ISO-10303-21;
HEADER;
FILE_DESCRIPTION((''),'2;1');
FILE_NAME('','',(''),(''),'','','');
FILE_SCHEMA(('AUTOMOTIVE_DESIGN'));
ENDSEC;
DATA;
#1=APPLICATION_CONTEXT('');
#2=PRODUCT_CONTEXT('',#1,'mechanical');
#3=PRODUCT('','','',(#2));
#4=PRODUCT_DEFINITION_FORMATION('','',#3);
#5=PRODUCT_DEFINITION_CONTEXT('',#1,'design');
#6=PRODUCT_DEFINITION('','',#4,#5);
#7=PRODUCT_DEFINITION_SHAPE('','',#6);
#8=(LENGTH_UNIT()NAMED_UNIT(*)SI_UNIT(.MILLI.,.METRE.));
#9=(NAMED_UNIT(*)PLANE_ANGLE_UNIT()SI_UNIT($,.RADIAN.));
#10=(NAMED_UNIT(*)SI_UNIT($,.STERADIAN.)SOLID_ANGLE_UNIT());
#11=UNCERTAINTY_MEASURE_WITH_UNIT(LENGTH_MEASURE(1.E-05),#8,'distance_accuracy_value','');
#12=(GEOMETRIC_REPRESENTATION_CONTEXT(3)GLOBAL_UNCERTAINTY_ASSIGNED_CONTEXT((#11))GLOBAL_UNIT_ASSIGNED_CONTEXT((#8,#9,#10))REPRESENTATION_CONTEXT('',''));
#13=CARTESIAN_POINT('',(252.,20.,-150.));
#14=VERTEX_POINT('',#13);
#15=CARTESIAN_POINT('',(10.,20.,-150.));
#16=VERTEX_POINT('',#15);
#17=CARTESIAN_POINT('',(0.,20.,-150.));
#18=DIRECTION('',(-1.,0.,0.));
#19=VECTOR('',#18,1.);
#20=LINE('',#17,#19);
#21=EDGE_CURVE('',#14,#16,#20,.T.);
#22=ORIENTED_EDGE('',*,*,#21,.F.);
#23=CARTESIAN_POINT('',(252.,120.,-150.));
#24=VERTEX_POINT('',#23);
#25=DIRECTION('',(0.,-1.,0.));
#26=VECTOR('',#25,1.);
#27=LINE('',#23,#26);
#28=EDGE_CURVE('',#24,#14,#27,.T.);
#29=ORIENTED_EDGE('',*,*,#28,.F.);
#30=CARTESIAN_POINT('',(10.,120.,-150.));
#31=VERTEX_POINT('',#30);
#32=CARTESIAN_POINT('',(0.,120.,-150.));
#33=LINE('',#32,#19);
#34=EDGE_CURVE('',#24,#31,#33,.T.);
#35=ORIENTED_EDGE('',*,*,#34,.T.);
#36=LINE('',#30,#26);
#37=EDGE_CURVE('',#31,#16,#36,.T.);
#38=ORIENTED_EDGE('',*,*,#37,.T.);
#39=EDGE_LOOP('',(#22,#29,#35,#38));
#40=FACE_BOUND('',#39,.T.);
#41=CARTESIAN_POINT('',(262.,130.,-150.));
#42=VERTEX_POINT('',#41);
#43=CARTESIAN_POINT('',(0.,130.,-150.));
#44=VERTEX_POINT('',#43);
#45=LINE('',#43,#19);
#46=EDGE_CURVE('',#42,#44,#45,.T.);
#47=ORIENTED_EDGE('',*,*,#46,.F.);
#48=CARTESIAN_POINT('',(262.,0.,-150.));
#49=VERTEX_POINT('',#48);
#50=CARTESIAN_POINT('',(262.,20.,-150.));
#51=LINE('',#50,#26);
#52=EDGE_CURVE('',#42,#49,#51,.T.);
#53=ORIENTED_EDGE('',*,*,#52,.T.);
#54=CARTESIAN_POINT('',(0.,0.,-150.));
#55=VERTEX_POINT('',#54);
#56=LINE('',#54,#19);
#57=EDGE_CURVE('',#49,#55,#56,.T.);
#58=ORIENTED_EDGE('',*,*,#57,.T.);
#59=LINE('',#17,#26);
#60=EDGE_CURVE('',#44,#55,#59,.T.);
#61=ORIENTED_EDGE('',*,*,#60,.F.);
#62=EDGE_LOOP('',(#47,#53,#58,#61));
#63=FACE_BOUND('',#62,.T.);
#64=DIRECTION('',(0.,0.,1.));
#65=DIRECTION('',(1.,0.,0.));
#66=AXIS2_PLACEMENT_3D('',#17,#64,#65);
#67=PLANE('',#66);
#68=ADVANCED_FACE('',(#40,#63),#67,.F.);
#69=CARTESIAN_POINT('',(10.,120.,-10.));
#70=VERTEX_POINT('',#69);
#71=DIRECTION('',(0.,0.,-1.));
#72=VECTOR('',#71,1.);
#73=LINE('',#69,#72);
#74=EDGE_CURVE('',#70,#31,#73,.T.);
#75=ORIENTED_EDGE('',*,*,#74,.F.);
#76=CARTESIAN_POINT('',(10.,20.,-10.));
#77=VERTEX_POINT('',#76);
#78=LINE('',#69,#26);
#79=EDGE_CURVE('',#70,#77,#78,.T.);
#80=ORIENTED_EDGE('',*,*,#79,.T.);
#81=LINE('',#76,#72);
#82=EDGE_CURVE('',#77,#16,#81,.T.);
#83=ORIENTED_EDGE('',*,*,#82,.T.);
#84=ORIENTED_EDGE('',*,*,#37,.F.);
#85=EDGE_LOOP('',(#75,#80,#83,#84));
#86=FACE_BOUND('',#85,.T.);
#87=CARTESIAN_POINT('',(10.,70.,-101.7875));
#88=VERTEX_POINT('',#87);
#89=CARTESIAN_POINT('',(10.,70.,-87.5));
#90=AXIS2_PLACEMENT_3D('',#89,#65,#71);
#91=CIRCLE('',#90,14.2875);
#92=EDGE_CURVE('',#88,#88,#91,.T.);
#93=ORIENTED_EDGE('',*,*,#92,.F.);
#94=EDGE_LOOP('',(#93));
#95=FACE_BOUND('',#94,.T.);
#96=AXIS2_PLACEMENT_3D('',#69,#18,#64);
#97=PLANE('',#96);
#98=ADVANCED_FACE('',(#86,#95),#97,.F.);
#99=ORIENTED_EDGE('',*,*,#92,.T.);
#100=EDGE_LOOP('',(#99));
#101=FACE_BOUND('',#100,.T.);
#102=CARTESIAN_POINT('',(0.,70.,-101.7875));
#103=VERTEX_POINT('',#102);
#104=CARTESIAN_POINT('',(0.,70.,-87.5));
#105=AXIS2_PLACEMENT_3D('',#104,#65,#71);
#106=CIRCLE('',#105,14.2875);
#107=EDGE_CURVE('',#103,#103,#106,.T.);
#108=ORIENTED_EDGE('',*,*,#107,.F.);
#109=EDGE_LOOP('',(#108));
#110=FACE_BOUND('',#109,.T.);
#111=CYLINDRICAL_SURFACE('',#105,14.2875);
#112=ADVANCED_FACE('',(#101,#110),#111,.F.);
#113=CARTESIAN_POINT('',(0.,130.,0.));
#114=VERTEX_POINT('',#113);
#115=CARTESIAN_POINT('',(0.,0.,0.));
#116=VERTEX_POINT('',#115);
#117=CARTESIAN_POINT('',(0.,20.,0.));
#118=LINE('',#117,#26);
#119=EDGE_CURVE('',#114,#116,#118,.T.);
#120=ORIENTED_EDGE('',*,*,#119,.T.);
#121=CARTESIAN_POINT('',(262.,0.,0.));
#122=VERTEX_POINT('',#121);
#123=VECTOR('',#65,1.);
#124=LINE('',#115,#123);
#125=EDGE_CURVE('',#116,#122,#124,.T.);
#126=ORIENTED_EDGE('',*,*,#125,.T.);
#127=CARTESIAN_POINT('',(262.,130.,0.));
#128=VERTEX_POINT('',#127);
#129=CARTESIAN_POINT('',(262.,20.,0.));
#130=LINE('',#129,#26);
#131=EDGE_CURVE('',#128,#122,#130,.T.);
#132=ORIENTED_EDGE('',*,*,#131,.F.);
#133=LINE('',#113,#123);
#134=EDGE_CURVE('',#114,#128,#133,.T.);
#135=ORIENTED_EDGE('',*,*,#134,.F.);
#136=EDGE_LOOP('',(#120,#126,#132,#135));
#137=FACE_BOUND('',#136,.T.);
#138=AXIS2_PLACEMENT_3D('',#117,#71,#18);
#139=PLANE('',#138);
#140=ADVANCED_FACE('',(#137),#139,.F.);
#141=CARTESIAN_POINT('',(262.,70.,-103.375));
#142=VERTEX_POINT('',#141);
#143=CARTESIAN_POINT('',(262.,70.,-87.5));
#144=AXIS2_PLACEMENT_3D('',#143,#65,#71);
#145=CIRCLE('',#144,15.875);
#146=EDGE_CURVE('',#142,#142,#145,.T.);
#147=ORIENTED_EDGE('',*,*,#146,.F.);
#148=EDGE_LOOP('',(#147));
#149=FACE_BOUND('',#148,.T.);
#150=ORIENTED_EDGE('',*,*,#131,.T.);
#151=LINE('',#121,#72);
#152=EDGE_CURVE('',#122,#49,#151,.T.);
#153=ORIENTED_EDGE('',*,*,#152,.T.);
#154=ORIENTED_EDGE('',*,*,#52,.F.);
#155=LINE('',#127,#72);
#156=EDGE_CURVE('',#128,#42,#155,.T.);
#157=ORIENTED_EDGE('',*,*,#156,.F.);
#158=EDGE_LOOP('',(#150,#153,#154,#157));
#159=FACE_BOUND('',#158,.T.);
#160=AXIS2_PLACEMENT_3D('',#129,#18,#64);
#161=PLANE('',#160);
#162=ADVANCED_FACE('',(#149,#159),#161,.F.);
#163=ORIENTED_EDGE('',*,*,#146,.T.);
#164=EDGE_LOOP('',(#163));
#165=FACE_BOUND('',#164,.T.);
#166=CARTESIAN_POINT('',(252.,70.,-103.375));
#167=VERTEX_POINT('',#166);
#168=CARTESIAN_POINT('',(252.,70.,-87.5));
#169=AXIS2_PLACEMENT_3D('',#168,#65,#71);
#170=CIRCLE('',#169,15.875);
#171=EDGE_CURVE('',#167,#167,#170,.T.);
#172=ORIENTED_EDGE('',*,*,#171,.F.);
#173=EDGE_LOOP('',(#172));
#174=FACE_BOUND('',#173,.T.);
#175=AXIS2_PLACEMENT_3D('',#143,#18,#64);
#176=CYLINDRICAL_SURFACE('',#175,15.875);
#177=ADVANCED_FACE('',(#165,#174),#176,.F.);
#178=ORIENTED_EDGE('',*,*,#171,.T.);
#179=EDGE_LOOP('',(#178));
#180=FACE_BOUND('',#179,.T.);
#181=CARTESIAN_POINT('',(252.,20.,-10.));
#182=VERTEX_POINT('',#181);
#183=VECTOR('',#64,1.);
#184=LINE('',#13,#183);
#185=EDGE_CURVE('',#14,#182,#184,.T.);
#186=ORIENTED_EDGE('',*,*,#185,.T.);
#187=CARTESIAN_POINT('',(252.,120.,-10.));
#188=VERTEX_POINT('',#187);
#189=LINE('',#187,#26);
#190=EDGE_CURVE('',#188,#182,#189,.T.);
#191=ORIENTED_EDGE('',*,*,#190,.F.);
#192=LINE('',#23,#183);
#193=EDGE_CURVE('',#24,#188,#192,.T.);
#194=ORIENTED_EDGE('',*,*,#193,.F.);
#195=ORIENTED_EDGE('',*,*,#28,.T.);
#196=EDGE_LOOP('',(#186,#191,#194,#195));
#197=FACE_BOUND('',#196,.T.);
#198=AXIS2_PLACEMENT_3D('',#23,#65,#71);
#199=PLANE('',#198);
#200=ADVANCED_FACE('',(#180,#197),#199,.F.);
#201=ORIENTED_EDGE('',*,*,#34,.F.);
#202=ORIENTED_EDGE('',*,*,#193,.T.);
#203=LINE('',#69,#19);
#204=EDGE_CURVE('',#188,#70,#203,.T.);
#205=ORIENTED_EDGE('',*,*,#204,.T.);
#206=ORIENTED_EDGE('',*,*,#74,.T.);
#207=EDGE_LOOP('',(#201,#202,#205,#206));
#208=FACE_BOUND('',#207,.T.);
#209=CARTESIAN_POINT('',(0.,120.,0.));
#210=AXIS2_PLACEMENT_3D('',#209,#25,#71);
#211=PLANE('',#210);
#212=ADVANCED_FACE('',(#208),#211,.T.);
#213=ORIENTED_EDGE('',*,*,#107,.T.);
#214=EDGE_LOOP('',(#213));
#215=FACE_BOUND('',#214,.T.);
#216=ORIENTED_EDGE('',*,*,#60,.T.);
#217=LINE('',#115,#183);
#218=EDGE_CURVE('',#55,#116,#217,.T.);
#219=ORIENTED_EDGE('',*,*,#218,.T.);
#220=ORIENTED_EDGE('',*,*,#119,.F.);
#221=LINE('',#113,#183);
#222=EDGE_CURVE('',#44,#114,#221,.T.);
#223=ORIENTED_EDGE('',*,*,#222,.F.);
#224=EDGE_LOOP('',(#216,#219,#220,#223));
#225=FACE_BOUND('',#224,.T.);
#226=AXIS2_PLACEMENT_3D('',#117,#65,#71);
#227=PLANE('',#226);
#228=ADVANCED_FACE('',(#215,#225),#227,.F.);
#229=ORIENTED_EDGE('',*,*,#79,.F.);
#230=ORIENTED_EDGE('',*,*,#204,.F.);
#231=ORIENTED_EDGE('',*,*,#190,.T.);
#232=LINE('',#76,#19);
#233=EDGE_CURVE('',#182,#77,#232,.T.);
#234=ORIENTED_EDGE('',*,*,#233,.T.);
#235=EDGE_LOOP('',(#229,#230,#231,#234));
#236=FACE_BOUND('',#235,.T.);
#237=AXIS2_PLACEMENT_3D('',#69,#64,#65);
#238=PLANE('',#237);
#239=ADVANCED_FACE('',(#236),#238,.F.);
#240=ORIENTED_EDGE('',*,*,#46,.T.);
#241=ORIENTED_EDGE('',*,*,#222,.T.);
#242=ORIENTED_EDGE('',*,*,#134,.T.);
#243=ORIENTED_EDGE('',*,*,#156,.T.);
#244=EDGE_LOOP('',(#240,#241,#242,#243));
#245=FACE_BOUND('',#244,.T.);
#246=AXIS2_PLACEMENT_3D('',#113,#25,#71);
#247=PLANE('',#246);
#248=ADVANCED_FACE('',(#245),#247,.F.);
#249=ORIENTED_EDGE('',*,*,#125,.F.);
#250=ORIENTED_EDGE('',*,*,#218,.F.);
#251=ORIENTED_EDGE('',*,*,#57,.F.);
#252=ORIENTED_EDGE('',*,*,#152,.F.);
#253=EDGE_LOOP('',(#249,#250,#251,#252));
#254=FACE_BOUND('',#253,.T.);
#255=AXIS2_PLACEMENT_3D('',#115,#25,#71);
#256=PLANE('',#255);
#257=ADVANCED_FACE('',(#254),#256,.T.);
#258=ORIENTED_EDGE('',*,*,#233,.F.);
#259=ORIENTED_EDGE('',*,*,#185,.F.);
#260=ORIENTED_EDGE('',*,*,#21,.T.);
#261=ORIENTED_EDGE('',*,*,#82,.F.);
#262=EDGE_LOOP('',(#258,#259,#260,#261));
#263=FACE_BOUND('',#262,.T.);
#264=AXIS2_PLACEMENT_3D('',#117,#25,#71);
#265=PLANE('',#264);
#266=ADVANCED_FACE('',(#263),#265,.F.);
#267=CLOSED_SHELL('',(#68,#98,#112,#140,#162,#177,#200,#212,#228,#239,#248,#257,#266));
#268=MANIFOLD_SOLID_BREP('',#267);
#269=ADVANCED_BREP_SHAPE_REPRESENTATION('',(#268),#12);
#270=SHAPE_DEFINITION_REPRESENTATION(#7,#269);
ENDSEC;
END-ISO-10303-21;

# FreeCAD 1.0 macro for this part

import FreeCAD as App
import Part
import Sketcher

V = App.Vector

doc = App.newDocument("Part")
body = doc.addObject("PartDesign::Body", "Body")

sketch1 = body.newObject("Sketcher::SketchObject", "Sketch")
sketch1.AttachmentSupport = (doc.getObject("XZ_Plane"), [""])
sketch1.MapMode = "FlatFace"
sketch1.addGeometry([
    Part.LineSegment(V(0, -150, 0), V(0, 0, 0)),
    Part.LineSegment(V(0, 0, 0), V(262, 0, 0)),
    Part.LineSegment(V(262, 0, 0), V(262, -150, 0)),
    Part.LineSegment(V(262, -150, 0), V(0, -150, 0)),
], False)
sketch1.addConstraint([
    Sketcher.Constraint("Coincident", 0, 2, 1, 1),
    Sketcher.Constraint("Coincident", 1, 2, 2, 1),
    Sketcher.Constraint("Coincident", 2, 2, 3, 1),
    Sketcher.Constraint("Coincident", 3, 2, 0, 1),
    Sketcher.Constraint("Vertical", 0),
    Sketcher.Constraint("Horizontal", 1),
    Sketcher.Constraint("Vertical", 2),
    Sketcher.Constraint("Horizontal", 3),
    Sketcher.Constraint("Coincident", 0, 2, -1, 1),
    Sketcher.Constraint("DistanceX", 1, 1, 1, 2, 262.0),
    Sketcher.Constraint("DistanceY", 0, 1, 0, 2, 150.0),
])
pad1 = body.newObject("PartDesign::Pad", "Pad")
pad1.Profile = sketch1
pad1.Length = 20
pad1.Reversed = True

sketch2 = body.newObject("Sketcher::SketchObject", "Sketch001")
sketch2.AttachmentSupport = (doc.getObject("XZ_Plane"), [""])
sketch2.MapMode = "FlatFace"
sketch2.AttachmentOffset = App.Placement(V(0, 0, -20), App.Rotation())
sketch2.addGeometry([
    Part.LineSegment(V(0, 0, 0), V(262, 0, 0)),
    Part.LineSegment(V(262, 0, 0), V(262, -150, 0)),
    Part.LineSegment(V(262, -150, 0), V(252, -150, 0)),
    Part.LineSegment(V(252, -150, 0), V(252, -10, 0)),
    Part.LineSegment(V(252, -10, 0), V(10, -10, 0)),
    Part.LineSegment(V(10, -10, 0), V(10, -150, 0)),
    Part.LineSegment(V(10, -150, 0), V(0, -150, 0)),
    Part.LineSegment(V(0, -150, 0), V(0, 0, 0)),
], False)
sketch2.addConstraint([
    Sketcher.Constraint("Coincident", 0, 2, 1, 1),
    Sketcher.Constraint("Coincident", 1, 2, 2, 1),
    Sketcher.Constraint("Coincident", 2, 2, 3, 1),
    Sketcher.Constraint("Coincident", 3, 2, 4, 1),
    Sketcher.Constraint("Coincident", 4, 2, 5, 1),
    Sketcher.Constraint("Coincident", 5, 2, 6, 1),
    Sketcher.Constraint("Coincident", 6, 2, 7, 1),
    Sketcher.Constraint("Coincident", 7, 2, 0, 1),
    Sketcher.Constraint("Horizontal", 0),
    Sketcher.Constraint("Vertical", 1),
    Sketcher.Constraint("Horizontal", 2),
    Sketcher.Constraint("Vertical", 3),
    Sketcher.Constraint("Horizontal", 4),
    Sketcher.Constraint("Vertical", 5),
    Sketcher.Constraint("Horizontal", 6),
    Sketcher.Constraint("Vertical", 7),
    Sketcher.Constraint("Coincident", 7, 2, -1, 1),
    Sketcher.Constraint("Horizontal", 2, 2, 5, 2),
    Sketcher.Constraint("Equal", 2, 6),
    Sketcher.Constraint("DistanceX", 0, 1, 0, 2, 262.0),
    Sketcher.Constraint("DistanceX", 2, 2, 2, 1, 10.0),
    Sketcher.Constraint("DistanceY", 1, 2, 1, 1, 150.0),
    Sketcher.Constraint("DistanceY", 3, 1, 3, 2, 140.0),
])
pad2 = body.newObject("PartDesign::Pad", "Pad001")
pad2.Profile = sketch2
pad2.Length = 100
pad2.Reversed = True

sketch3 = body.newObject("Sketcher::SketchObject", "Sketch002")
sketch3.AttachmentSupport = (doc.getObject("YZ_Plane"), [""])
sketch3.MapMode = "FlatFace"
sketch3.AttachmentOffset = App.Placement(V(0, 0, 10), App.Rotation())
sketch3.addGeometry(Part.Circle(V(70, -88, 0), V(0, 0, 1), 14), False)
sketch3.addConstraint([
    Sketcher.Constraint("Diameter", 0, 28.575),
    Sketcher.Constraint("DistanceX", -1, 1, 0, 3, 70.0),
    Sketcher.Constraint("DistanceY", 0, 3, -1, 1, 87.5),
])
pocket1 = body.newObject("PartDesign::Pocket", "Pocket")
pocket1.Profile = sketch3
pocket1.Type = "ThroughAll"

sketch4 = body.newObject("Sketcher::SketchObject", "Sketch003")
sketch4.AttachmentSupport = (doc.getObject("YZ_Plane"), [""])
sketch4.MapMode = "FlatFace"
sketch4.AttachmentOffset = App.Placement(V(0, 0, 252), App.Rotation())
sketch4.addGeometry(Part.Circle(V(70, -88, 0), V(0, 0, 1), 16), False)
sketch4.addConstraint([
    Sketcher.Constraint("Diameter", 0, 31.75),
    Sketcher.Constraint("DistanceX", -1, 1, 0, 3, 70.0),
    Sketcher.Constraint("DistanceY", 0, 3, -1, 1, 87.5),
])
pocket2 = body.newObject("PartDesign::Pocket", "Pocket001")
pocket2.Profile = sketch4
pocket2.Type = "ThroughAll"
pocket2.Reversed = True

sketch5 = body.newObject("Sketcher::SketchObject", "Sketch004")
sketch5.AttachmentSupport = (doc.getObject("XZ_Plane"), [""])
sketch5.MapMode = "FlatFace"
sketch5.AttachmentOffset = App.Placement(V(0, 0, -120), App.Rotation())
sketch5.addGeometry([
    Part.LineSegment(V(0, -150, 0), V(0, 0, 0)),
    Part.LineSegment(V(0, 0, 0), V(262, 0, 0)),
    Part.LineSegment(V(262, 0, 0), V(262, -150, 0)),
    Part.LineSegment(V(262, -150, 0), V(0, -150, 0)),
], False)
sketch5.addConstraint([
    Sketcher.Constraint("Coincident", 0, 2, 1, 1),
    Sketcher.Constraint("Coincident", 1, 2, 2, 1),
    Sketcher.Constraint("Coincident", 2, 2, 3, 1),
    Sketcher.Constraint("Coincident", 3, 2, 0, 1),
    Sketcher.Constraint("Vertical", 0),
    Sketcher.Constraint("Horizontal", 1),
    Sketcher.Constraint("Vertical", 2),
    Sketcher.Constraint("Horizontal", 3),
    Sketcher.Constraint("Coincident", 0, 2, -1, 1),
    Sketcher.Constraint("DistanceX", 1, 1, 1, 2, 262.0),
    Sketcher.Constraint("DistanceY", 0, 1, 0, 2, 150.0),
])
pad3 = body.newObject("PartDesign::Pad", "Pad002")
pad3.Profile = sketch5
pad3.Length = 10
pad3.Reversed = True

doc.recompute()
